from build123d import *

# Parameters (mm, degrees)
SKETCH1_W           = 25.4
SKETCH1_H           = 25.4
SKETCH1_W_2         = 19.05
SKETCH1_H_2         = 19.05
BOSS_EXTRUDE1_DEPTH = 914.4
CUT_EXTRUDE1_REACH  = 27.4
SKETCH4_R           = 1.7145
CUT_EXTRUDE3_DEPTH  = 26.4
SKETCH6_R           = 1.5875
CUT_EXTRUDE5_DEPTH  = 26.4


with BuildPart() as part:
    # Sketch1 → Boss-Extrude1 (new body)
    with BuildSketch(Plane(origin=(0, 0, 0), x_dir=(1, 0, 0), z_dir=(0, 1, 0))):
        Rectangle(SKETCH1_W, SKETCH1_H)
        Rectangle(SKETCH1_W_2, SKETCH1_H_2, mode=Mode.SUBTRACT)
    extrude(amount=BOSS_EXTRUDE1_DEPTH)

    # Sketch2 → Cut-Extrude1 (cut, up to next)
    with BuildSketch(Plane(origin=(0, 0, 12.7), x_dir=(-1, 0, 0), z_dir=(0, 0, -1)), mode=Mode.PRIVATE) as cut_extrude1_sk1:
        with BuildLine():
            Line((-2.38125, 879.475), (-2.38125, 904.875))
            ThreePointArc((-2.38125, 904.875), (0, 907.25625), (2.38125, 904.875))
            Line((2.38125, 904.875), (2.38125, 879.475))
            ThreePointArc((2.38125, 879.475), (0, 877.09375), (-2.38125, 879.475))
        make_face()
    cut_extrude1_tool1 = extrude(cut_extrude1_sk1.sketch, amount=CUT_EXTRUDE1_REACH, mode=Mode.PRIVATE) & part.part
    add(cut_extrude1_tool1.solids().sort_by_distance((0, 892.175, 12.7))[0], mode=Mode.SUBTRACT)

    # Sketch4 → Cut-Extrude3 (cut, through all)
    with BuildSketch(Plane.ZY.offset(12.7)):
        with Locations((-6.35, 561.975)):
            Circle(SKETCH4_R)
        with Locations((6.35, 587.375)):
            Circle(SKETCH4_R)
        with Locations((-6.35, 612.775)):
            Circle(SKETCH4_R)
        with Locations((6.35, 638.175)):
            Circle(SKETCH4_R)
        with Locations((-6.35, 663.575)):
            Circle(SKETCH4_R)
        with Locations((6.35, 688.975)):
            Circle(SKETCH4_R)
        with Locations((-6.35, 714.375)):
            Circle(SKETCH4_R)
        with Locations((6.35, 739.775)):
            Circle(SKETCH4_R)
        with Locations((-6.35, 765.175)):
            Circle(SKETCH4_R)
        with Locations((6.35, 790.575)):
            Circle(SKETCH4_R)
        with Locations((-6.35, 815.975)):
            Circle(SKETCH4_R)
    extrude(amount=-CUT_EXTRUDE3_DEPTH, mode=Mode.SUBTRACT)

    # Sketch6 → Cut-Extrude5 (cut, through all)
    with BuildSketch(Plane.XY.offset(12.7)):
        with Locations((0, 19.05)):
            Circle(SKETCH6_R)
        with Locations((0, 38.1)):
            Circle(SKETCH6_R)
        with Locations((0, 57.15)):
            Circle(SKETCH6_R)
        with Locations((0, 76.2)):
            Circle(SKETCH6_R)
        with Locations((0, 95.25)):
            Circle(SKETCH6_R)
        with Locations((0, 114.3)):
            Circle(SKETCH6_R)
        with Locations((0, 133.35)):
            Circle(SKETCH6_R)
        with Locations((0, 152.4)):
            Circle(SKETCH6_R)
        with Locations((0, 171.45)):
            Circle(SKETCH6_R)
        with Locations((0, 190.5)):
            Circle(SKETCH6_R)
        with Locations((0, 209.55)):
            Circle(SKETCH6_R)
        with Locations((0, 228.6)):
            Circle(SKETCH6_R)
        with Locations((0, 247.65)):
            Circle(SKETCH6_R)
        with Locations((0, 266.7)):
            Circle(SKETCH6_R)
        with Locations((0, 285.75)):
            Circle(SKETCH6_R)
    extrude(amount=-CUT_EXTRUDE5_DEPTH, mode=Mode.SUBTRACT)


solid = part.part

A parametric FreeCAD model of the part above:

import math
import FreeCAD as App
import Part
import Sketcher

V = App.Vector
Q = App.Units.Quantity


def add_polygon(sketch, points):
    """Adds a closed chain of lines whose ends are joined by coincident constraints."""
    first, n = sketch.GeometryCount, len(points)
    for a, b in zip(points, points[1:] + points[:1]):
        sketch.addGeometry(Part.LineSegment(App.Vector(*a, 0), App.Vector(*b, 0)), False)
    for i in range(n):
        sketch.addConstraint(Sketcher.Constraint("Coincident", first + i, 2, first + (i + 1) % n, 1))

doc = App.newDocument("Part")
body = doc.addObject("PartDesign::Body", "Body")

# Sketch on XZ plane
sketch1 = body.newObject("Sketcher::SketchObject", "Sketch")
sketch1.AttachmentSupport = (doc.getObject("XZ_Plane"), [""])
sketch1.MapMode = "FlatFace"
add_polygon(sketch1, [(-13, -13), (-13, 13), (13, 13), (13, -13)])  # lines 0-3
add_polygon(sketch1, [(10, 10), (-10, 10), (-10, -10), (10, -10)])  # lines 4-7
sketch1.addConstraint([
    Sketcher.Constraint("Vertical", 0),
    Sketcher.Constraint("Horizontal", 1),
    Sketcher.Constraint("Vertical", 2),
    Sketcher.Constraint("Horizontal", 3),
    Sketcher.Constraint("Horizontal", 4),
    Sketcher.Constraint("Vertical", 5),
    Sketcher.Constraint("Horizontal", 6),
    Sketcher.Constraint("Vertical", 7),
    Sketcher.Constraint("Symmetric", 0, 2, 2, 2, -1, 1),
    Sketcher.Constraint("Symmetric", 4, 2, 6, 2, -1, 1),
    Sketcher.Constraint("Equal", 3, 0),
    Sketcher.Constraint("Equal", 6, 5),
    Sketcher.Constraint("DistanceX", 1, 1, 1, 2, Q("1 in")),
    Sketcher.Constraint("DistanceX", 4, 2, 4, 1, Q("0.75 in")),
])
pad1 = body.newObject("PartDesign::Pad", "Pad")
pad1.Profile = sketch1
pad1.Length = Q("36 in")
pad1.Reversed = True

# Sketch on XY plane
sketch2 = body.newObject("Sketcher::SketchObject", "Sketch001")
sketch2.AttachmentSupport = (doc.getObject("XY_Plane"), [""])
sketch2.MapMode = "FlatFace"
sketch2.AttachmentOffset = App.Placement(V(0, 0, 0.5 * 25.4), App.Rotation())
sketch2.addGeometry([
    Part.LineSegment(V(2.4, 904.9, 0), V(2.4, 879.5, 0)),
    Part.ArcOfCircle(Part.Circle(V(0, 879.5, 0), V(0, 0, 1), 2.4), math.radians(180), math.radians(360)),
    Part.LineSegment(V(-2.4, 879.5, 0), V(-2.4, 904.9, 0)),
    Part.ArcOfCircle(Part.Circle(V(0, 904.9, 0), V(0, 0, 1), 2.4), math.radians(0), math.radians(180)),
], False)
sketch2.addConstraint([
    Sketcher.Constraint("Tangent", 0, 2, 1, 2),
    Sketcher.Constraint("Tangent", 1, 1, 2, 1),
    Sketcher.Constraint("Tangent", 2, 2, 3, 2),
    Sketcher.Constraint("Tangent", 3, 1, 0, 1),
    Sketcher.Constraint("Vertical", 0),
    Sketcher.Constraint("Vertical", 2),
    Sketcher.Constraint("PointOnObject", 1, 3, -2),
    Sketcher.Constraint("DistanceY", 0, 2, 0, 1, Q("1 in")),
    Sketcher.Constraint("Radius", 1, Q("0.09375 in")),
    Sketcher.Constraint("DistanceY", -1, 1, 1, 3, Q("34.625 in")),
])
pocket1 = body.newObject("PartDesign::Pocket", "Pocket")
pocket1.Profile = sketch2
pocket1.Type = "UpToFirst"

# Sketch on YZ plane
sketch3 = body.newObject("Sketcher::SketchObject", "Sketch002")
sketch3.AttachmentSupport = (doc.getObject("YZ_Plane"), [""])
sketch3.MapMode = "FlatFace"
sketch3.AttachmentOffset = App.Placement(V(0, 0, -0.5 * 25.4), App.Rotation())
sketch3.addGeometry([
    Part.Circle(V(562, -6.3, 0), V(0, 0, 1), 1.7),  # 0
    Part.Circle(V(587.4, 6.3, 0), V(0, 0, 1), 1.7),  # 1
    Part.Circle(V(612.8, -6.3, 0), V(0, 0, 1), 1.7),  # 2
    Part.Circle(V(638.2, 6.3, 0), V(0, 0, 1), 1.7),  # 3
    Part.Circle(V(663.6, -6.3, 0), V(0, 0, 1), 1.7),  # 4
    Part.Circle(V(689, 6.3, 0), V(0, 0, 1), 1.7),  # 5
    Part.Circle(V(714.4, -6.3, 0), V(0, 0, 1), 1.7),  # 6
    Part.Circle(V(739.8, 6.3, 0), V(0, 0, 1), 1.7),  # 7
    Part.Circle(V(765.2, -6.3, 0), V(0, 0, 1), 1.7),  # 8
    Part.Circle(V(790.6, 6.3, 0), V(0, 0, 1), 1.7),  # 9
    Part.Circle(V(816, -6.3, 0), V(0, 0, 1), 1.7),  # 10
], False)
sketch3.addConstraint([
    Sketcher.Constraint("Equal", 0, 1),
    Sketcher.Constraint("Equal", 1, 2),
    Sketcher.Constraint("Equal", 2, 3),
    Sketcher.Constraint("Equal", 3, 4),
    Sketcher.Constraint("Equal", 4, 5),
    Sketcher.Constraint("Equal", 5, 6),
    Sketcher.Constraint("Equal", 6, 7),
    Sketcher.Constraint("Equal", 7, 8),
    Sketcher.Constraint("Equal", 8, 9),
    Sketcher.Constraint("Equal", 9, 10),
    Sketcher.Constraint("Horizontal", 0, 3, 2, 3),
    Sketcher.Constraint("Horizontal", 1, 3, 3, 3),
    Sketcher.Constraint("Horizontal", 2, 3, 4, 3),
    Sketcher.Constraint("Horizontal", 3, 3, 5, 3),
    Sketcher.Constraint("Horizontal", 4, 3, 6, 3),
    Sketcher.Constraint("Horizontal", 5, 3, 7, 3),
    Sketcher.Constraint("Horizontal", 6, 3, 8, 3),
    Sketcher.Constraint("Horizontal", 7, 3, 9, 3),
    Sketcher.Constraint("Horizontal", 8, 3, 10, 3),
    Sketcher.Constraint("Diameter", 0, Q("0.135 in")),
    Sketcher.Constraint("DistanceX", 0, 3, 1, 3, Q("1 in")),
    Sketcher.Constraint("DistanceX", 1, 3, 2, 3, Q("1 in")),
    Sketcher.Constraint("DistanceX", 2, 3, 3, 3, Q("1 in")),
    Sketcher.Constraint("DistanceX", 3, 3, 4, 3, Q("1 in")),
    Sketcher.Constraint("DistanceX", 4, 3, 5, 3, Q("1 in")),
    Sketcher.Constraint("DistanceX", 5, 3, 6, 3, Q("1 in")),
    Sketcher.Constraint("DistanceX", 6, 3, 7, 3, Q("1 in")),
    Sketcher.Constraint("DistanceX", 7, 3, 8, 3, Q("1 in")),
    Sketcher.Constraint("DistanceX", 8, 3, 9, 3, Q("1 in")),
    Sketcher.Constraint("DistanceX", 9, 3, 10, 3, Q("1 in")),
    Sketcher.Constraint("DistanceY", 0, 3, 1, 3, Q("0.5 in")),
    Sketcher.Constraint("DistanceY", 0, 3, -1, 1, Q("0.25 in")),
    Sketcher.Constraint("DistanceX", -1, 1, 0, 3, Q("22.125 in")),
])
pocket2 = body.newObject("PartDesign::Pocket", "Pocket001")
pocket2.Profile = sketch3
pocket2.Type = "ThroughAll"
pocket2.Reversed = True

# Sketch on XY plane
sketch4 = body.newObject("Sketcher::SketchObject", "Sketch003")
sketch4.AttachmentSupport = (doc.getObject("XY_Plane"), [""])
sketch4.MapMode = "FlatFace"
sketch4.AttachmentOffset = App.Placement(V(0, 0, 0.5 * 25.4), App.Rotation())
sketch4.addGeometry([
    Part.Circle(V(0, 19.1, 0), V(0, 0, 1), 1.6),  # 0
    Part.Circle(V(0, 38.1, 0), V(0, 0, 1), 1.6),  # 1
    Part.Circle(V(0, 57.1, 0), V(0, 0, 1), 1.6),  # 2
    Part.Circle(V(0, 76.2, 0), V(0, 0, 1), 1.6),  # 3
    Part.Circle(V(0, 95.2, 0), V(0, 0, 1), 1.6),  # 4
    Part.Circle(V(0, 114.3, 0), V(0, 0, 1), 1.6),  # 5
    Part.Circle(V(0, 133.3, 0), V(0, 0, 1), 1.6),  # 6
    Part.Circle(V(0, 152.4, 0), V(0, 0, 1), 1.6),  # 7
    Part.Circle(V(0, 171.4, 0), V(0, 0, 1), 1.6),  # 8
    Part.Circle(V(0, 190.5, 0), V(0, 0, 1), 1.6),  # 9
    Part.Circle(V(0, 209.6, 0), V(0, 0, 1), 1.6),  # 10
    Part.Circle(V(0, 228.6, 0), V(0, 0, 1), 1.6),  # 11
    Part.Circle(V(0, 247.7, 0), V(0, 0, 1), 1.6),  # 12
    Part.Circle(V(0, 266.7, 0), V(0, 0, 1), 1.6),  # 13
    Part.Circle(V(0, 285.8, 0), V(0, 0, 1), 1.6),  # 14
], False)
sketch4.addConstraint([
    Sketcher.Constraint("Equal", 0, 1),
    Sketcher.Constraint("Equal", 1, 2),
    Sketcher.Constraint("Equal", 2, 3),
    Sketcher.Constraint("Equal", 3, 4),
    Sketcher.Constraint("Equal", 4, 5),
    Sketcher.Constraint("Equal", 5, 6),
    Sketcher.Constraint("Equal", 6, 7),
    Sketcher.Constraint("Equal", 7, 8),
    Sketcher.Constraint("Equal", 8, 9),
    Sketcher.Constraint("Equal", 9, 10),
    Sketcher.Constraint("Equal", 10, 11),
    Sketcher.Constraint("Equal", 11, 12),
    Sketcher.Constraint("Equal", 12, 13),
    Sketcher.Constraint("Equal", 13, 14),
    Sketcher.Constraint("PointOnObject", 0, 3, -2),
    Sketcher.Constraint("PointOnObject", 1, 3, -2),
    Sketcher.Constraint("PointOnObject", 2, 3, -2),
    Sketcher.Constraint("PointOnObject", 3, 3, -2),
    Sketcher.Constraint("PointOnObject", 4, 3, -2),
    Sketcher.Constraint("PointOnObject", 5, 3, -2),
    Sketcher.Constraint("PointOnObject", 6, 3, -2),
    Sketcher.Constraint("PointOnObject", 7, 3, -2),
    Sketcher.Constraint("PointOnObject", 8, 3, -2),
    Sketcher.Constraint("PointOnObject", 9, 3, -2),
    Sketcher.Constraint("PointOnObject", 10, 3, -2),
    Sketcher.Constraint("PointOnObject", 11, 3, -2),
    Sketcher.Constraint("PointOnObject", 12, 3, -2),
    Sketcher.Constraint("PointOnObject", 13, 3, -2),
    Sketcher.Constraint("PointOnObject", 14, 3, -2),
    Sketcher.Constraint("Diameter", 0, Q("0.125 in")),
    Sketcher.Constraint("DistanceY", -1, 1, 3, 3, Q("3 in")),
    Sketcher.Constraint("DistanceY", -1, 1, 7, 3, Q("6 in")),
    Sketcher.Constraint("DistanceY", -1, 1, 11, 3, Q("9 in")),
    Sketcher.Constraint("DistanceY", 0, 3, 4, 3, Q("3 in")),
    Sketcher.Constraint("DistanceY", 1, 3, 5, 3, Q("3 in")),
    Sketcher.Constraint("DistanceY", 2, 3, 6, 3, Q("3 in")),
    Sketcher.Constraint("DistanceY", 4, 3, 8, 3, Q("3 in")),
    Sketcher.Constraint("DistanceY", 5, 3, 9, 3, Q("3 in")),
    Sketcher.Constraint("DistanceY", 6, 3, 10, 3, Q("3 in")),
    Sketcher.Constraint("DistanceY", 8, 3, 12, 3, Q("3 in")),
    Sketcher.Constraint("DistanceY", 9, 3, 13, 3, Q("3 in")),
    Sketcher.Constraint("DistanceY", 10, 3, 14, 3, Q("3 in")),
    Sketcher.Constraint("DistanceY", -1, 1, 1, 3, Q("1.5 in")),
    Sketcher.Constraint("DistanceY", 0, 3, 2, 3, Q("1.5 in")),
    Sketcher.Constraint("DistanceY", -1, 1, 0, 3, Q("0.75 in")),
])
pocket3 = body.newObject("PartDesign::Pocket", "Pocket002")
pocket3.Profile = sketch4
pocket3.Type = "ThroughAll"

doc.recompute()
